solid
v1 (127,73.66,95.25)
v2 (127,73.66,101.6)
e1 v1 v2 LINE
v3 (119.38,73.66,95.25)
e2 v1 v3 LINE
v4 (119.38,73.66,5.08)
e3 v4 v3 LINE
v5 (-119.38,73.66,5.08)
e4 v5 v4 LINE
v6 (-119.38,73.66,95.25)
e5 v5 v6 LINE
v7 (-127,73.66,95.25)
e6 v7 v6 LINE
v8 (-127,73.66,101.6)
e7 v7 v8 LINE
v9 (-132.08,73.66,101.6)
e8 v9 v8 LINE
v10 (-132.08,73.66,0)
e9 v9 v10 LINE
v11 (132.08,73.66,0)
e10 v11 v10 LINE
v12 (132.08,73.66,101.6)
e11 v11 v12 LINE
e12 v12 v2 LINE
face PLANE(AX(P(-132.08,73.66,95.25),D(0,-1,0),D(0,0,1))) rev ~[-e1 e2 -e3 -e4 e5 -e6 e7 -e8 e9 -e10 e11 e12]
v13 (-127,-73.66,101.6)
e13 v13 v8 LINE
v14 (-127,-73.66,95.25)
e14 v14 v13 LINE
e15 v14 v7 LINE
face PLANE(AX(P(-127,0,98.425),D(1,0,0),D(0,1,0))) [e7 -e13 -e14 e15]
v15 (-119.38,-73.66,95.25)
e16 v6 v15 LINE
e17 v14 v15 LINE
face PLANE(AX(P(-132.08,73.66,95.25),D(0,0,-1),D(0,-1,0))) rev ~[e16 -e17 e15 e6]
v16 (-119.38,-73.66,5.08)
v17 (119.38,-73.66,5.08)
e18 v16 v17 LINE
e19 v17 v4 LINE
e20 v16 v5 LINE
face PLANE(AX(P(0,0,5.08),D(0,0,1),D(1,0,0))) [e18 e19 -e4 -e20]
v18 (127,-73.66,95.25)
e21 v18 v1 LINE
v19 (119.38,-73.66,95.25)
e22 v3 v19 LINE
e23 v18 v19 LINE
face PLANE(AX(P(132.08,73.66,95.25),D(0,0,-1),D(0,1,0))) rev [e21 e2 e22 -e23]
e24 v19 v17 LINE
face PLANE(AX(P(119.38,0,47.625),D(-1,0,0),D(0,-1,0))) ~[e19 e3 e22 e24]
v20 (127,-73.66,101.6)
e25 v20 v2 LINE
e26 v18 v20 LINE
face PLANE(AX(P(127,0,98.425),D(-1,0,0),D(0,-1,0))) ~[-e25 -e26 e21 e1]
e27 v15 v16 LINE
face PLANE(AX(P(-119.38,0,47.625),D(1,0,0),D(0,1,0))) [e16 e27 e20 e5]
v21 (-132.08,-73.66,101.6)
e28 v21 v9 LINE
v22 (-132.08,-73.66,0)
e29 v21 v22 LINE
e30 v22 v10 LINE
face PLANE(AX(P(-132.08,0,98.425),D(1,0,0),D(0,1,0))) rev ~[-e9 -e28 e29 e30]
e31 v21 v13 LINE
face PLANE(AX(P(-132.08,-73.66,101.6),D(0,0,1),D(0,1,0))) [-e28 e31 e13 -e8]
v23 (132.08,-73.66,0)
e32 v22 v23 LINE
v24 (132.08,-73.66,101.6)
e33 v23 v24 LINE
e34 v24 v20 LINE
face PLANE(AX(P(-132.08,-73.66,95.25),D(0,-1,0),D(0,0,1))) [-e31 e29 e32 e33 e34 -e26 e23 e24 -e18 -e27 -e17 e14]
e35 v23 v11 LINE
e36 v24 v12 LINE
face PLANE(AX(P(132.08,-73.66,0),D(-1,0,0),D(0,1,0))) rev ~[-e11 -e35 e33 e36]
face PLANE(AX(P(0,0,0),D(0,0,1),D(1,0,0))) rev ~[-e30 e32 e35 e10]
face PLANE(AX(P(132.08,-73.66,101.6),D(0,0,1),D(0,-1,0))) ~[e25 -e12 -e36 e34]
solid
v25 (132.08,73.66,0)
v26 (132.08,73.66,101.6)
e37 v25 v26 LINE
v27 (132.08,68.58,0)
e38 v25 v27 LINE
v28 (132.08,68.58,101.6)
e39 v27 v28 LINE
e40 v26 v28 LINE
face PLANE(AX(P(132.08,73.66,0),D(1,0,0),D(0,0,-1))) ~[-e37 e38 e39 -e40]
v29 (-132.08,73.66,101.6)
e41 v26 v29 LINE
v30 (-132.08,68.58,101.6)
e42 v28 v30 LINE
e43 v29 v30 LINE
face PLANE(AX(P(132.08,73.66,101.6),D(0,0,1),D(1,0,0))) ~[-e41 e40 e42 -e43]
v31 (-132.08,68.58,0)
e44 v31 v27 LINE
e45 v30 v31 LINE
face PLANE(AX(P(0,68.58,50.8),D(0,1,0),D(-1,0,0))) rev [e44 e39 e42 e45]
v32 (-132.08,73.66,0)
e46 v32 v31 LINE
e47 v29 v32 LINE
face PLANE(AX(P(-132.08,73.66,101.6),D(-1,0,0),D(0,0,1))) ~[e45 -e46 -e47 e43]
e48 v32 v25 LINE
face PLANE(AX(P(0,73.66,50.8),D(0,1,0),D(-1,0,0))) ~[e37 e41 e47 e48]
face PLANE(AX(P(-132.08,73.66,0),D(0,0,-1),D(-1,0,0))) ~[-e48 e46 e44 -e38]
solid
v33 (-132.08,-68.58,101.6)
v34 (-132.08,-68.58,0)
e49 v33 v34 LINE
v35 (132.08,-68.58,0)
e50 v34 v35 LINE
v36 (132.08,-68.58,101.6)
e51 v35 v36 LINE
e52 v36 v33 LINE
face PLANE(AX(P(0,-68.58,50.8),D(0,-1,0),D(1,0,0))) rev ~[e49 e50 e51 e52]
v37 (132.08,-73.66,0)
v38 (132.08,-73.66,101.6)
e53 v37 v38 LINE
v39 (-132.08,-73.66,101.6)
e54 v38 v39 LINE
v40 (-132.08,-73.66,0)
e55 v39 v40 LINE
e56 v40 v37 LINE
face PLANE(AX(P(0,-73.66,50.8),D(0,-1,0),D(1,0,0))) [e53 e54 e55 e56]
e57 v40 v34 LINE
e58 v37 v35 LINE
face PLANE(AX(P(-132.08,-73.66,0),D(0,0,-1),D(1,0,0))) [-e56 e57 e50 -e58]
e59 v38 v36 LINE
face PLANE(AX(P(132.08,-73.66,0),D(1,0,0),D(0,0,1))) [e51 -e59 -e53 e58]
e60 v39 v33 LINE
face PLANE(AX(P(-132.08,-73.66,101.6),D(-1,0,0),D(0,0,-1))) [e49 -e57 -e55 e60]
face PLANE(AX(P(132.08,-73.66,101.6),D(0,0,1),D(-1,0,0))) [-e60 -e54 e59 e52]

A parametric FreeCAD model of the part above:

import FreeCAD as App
import Part
import Sketcher
Q = App.Units.Quantity

doc = App.newDocument("Part")
body = doc.addObject("PartDesign::Body", "Body")

# Sketch on XY plane
sketch1 = doc.addObject("Sketcher::SketchObject", "Sketch")
body.addObject(sketch1)
sketch1.AttachmentSupport = (doc.XY_Plane, [""])
sketch1.MapMode = "FlatFace"
sketch1.addGeometry([
    Part.LineSegment(App.Vector(-132.08, 73.66, 0), App.Vector(-132.08, -73.66, 0)),
    Part.LineSegment(App.Vector(-132.08, -73.66, 0), App.Vector(132.08, -73.66, 0)),
    Part.LineSegment(App.Vector(132.08, -73.66, 0), App.Vector(132.08, 73.66, 0)),
    Part.LineSegment(App.Vector(132.08, 73.66, 0), App.Vector(-132.08, 73.66, 0)),
], False)
sketch1.addConstraint([
    Sketcher.Constraint("Coincident", 0, 2, 1, 1),
    Sketcher.Constraint("Coincident", 1, 2, 2, 1),
    Sketcher.Constraint("Coincident", 2, 2, 3, 1),
    Sketcher.Constraint("Coincident", 3, 2, 0, 1),
    Sketcher.Constraint("Vertical", 0),
    Sketcher.Constraint("Horizontal", 1),
    Sketcher.Constraint("Vertical", 2),
    Sketcher.Constraint("Horizontal", 3),
    Sketcher.Constraint("Symmetric", 0, 2, 2, 2, -1, 1),
    Sketcher.Constraint("DistanceX", 1, 1, 1, 2, Q("10.4 in")),
    Sketcher.Constraint("DistanceY", 0, 2, 0, 1, Q("5.8 in")),
])
pad1 = doc.addObject("PartDesign::Pad", "Pad")
body.addObject(pad1)
pad1.Profile = sketch1
pad1.Length = Q("0.2 in")

# Sketch on YZ plane
sketch2 = doc.addObject("Sketcher::SketchObject", "Sketch001")
body.addObject(sketch2)
sketch2.AttachmentSupport = (doc.YZ_Plane, [""])
sketch2.MapMode = "FlatFace"
sketch2.AttachmentOffset = App.Placement(App.Vector(0, 0, -5.2 * 25.4), App.Rotation())
sketch2.addGeometry([
    Part.LineSegment(App.Vector(-73.66, 0, 0), App.Vector(73.66, 0, 0)),
    Part.LineSegment(App.Vector(73.66, 0, 0), App.Vector(73.66, 95.25, 0)),
    Part.LineSegment(App.Vector(73.66, 95.25, 0), App.Vector(-73.66, 95.25, 0)),
    Part.LineSegment(App.Vector(-73.66, 95.25, 0), App.Vector(-73.66, 0, 0)),
], False)
sketch2.addConstraint([
    Sketcher.Constraint("Coincident", 0, 2, 1, 1),
    Sketcher.Constraint("Coincident", 1, 2, 2, 1),
    Sketcher.Constraint("Coincident", 2, 2, 3, 1),
    Sketcher.Constraint("Coincident", 3, 2, 0, 1),
    Sketcher.Constraint("Horizontal", 0),
    Sketcher.Constraint("Vertical", 1),
    Sketcher.Constraint("Horizontal", 2),
    Sketcher.Constraint("Vertical", 3),
    Sketcher.Constraint("Symmetric", 0, 2, 3, 2, -1, 1),
    Sketcher.Constraint("DistanceX", 0, 1, 0, 2, Q("5.8 in")),
    Sketcher.Constraint("DistanceY", 1, 1, 1, 2, Q("3.75 in")),
])
pad2 = doc.addObject("PartDesign::Pad", "Pad001")
body.addObject(pad2)
pad2.Profile = sketch2
pad2.Length = Q("0.5 in")
body2 = doc.addObject("PartDesign::Body", "Body001")

# Sketch on XZ plane
sketch3 = doc.addObject("Sketcher::SketchObject", "Sketch002")
body2.addObject(sketch3)
sketch3.AttachmentSupport = (doc.getObject("XZ_Plane001"), [""])
sketch3.MapMode = "FlatFace"
sketch3.AttachmentOffset = App.Placement(App.Vector(0, 0, 2.9 * 25.4), App.Rotation())
sketch3.addGeometry([
    Part.LineSegment(App.Vector(-132.08, 0, 0), App.Vector(132.08, 0, 0)),
    Part.LineSegment(App.Vector(132.08, 0, 0), App.Vector(132.08, 101.6, 0)),
    Part.LineSegment(App.Vector(132.08, 101.6, 0), App.Vector(-132.08, 101.6, 0)),
    Part.LineSegment(App.Vector(-132.08, 101.6, 0), App.Vector(-132.08, 0, 0)),
], False)
sketch3.addConstraint([
    Sketcher.Constraint("Coincident", 0, 2, 1, 1),
    Sketcher.Constraint("Coincident", 1, 2, 2, 1),
    Sketcher.Constraint("Coincident", 2, 2, 3, 1),
    Sketcher.Constraint("Coincident", 3, 2, 0, 1),
    Sketcher.Constraint("Horizontal", 0),
    Sketcher.Constraint("Vertical", 1),
    Sketcher.Constraint("Horizontal", 2),
    Sketcher.Constraint("Vertical", 3),
    Sketcher.Constraint("Symmetric", 0, 2, 3, 2, -1, 1),
    Sketcher.Constraint("DistanceY", 1, 1, 1, 2, Q("4 in")),
    Sketcher.Constraint("DistanceX", 0, 1, 0, 2, Q("10.4 in")),
])
pad3 = doc.addObject("PartDesign::Pad", "Pad002")
body2.addObject(pad3)
pad3.Profile = sketch3
pad3.Length = Q("0.2 in")
pad3.Reversed = True
body3 = doc.addObject("PartDesign::Body", "Body002")
doc.recompute()

mirroring = doc.addObject("Part::Mirroring", "Mirroring")
mirroring.Source = body2
mirroring.Base = App.Vector(0, 0, 0)
mirroring.Normal = App.Vector(0, -1, 0)
body3.BaseFeature = mirroring
doc.recompute()
body4 = doc.addObject("PartDesign::Body", "Body003")

# Sketch on YZ plane
sketch4 = doc.addObject("Sketcher::SketchObject", "Sketch003")
body4.addObject(sketch4)
sketch4.AttachmentSupport = (doc.getObject("YZ_Plane003"), [""])
sketch4.MapMode = "FlatFace"
sketch4.AttachmentOffset = App.Placement(App.Vector(0, 0, -5.2 * 25.4), App.Rotation())
sketch4.addGeometry([
    Part.LineSegment(App.Vector(-73.66, 101.6, 0), App.Vector(-73.66, 95.25, 0)),
    Part.LineSegment(App.Vector(-73.66, 95.25, 0), App.Vector(73.66, 95.25, 0)),
    Part.LineSegment(App.Vector(73.66, 95.25, 0), App.Vector(73.66, 101.6, 0)),
    Part.LineSegment(App.Vector(73.66, 101.6, 0), App.Vector(-73.66, 101.6, 0)),
], False)
sketch4.addConstraint([
    Sketcher.Constraint("Coincident", 0, 2, 1, 1),
    Sketcher.Constraint("Coincident", 1, 2, 2, 1),
    Sketcher.Constraint("Coincident", 2, 2, 3, 1),
    Sketcher.Constraint("Coincident", 3, 2, 0, 1),
    Sketcher.Constraint("Vertical", 0),
    Sketcher.Constraint("Horizontal", 1),
    Sketcher.Constraint("Vertical", 2),
    Sketcher.Constraint("Horizontal", 3),
    Sketcher.Constraint("DistanceX", 1, 1, 1, 2, Q("5.8 in")),
    Sketcher.Constraint("DistanceY", -1, 1, 2, 2, Q("4 in")),
    Sketcher.Constraint("DistanceY", 0, 2, 0, 1, Q("0.25 in")),
    Sketcher.Constraint("DistanceX", 0, 2, -1, 1, Q("2.9 in")),
])
pad4 = doc.addObject("PartDesign::Pad", "Pad003")
body4.addObject(pad4)
pad4.Profile = sketch4
pad4.Length = Q("0.2 in")
body5 = doc.addObject("PartDesign::Body", "Body004")
body5.AllowCompound = True
doc.recompute()

body5.BaseFeature = body
doc.recompute()

body6 = doc.addObject("PartDesign::Body", "Body005")
body6.BaseFeature = body4
boolean = doc.addObject("PartDesign::Boolean", "Boolean")
body5.addObject(boolean)
boolean.Type = "Fuse"
boolean.addObjects([body6])
doc.recompute()

mirroring2 = doc.addObject("Part::Mirroring", "Mirroring001")
mirroring2.Source = body4
mirroring2.Base = App.Vector(0, 0, 0)
mirroring2.Normal = App.Vector(1, 0, 0)
body7 = doc.addObject("PartDesign::Body", "Body006")
body7.BaseFeature = mirroring2
boolean2 = doc.addObject("PartDesign::Boolean", "Boolean001")
body5.addObject(boolean2)
boolean2.Type = "Fuse"
boolean2.addObjects([body7])
doc.recompute()

mirroring3 = doc.addObject("Part::Mirroring", "Mirroring002")
mirroring3.Source = body
mirroring3.Base = App.Vector(0, 0, 0)
mirroring3.Normal = App.Vector(1, 0, 0)
body8 = doc.addObject("PartDesign::Body", "Body007")
body8.BaseFeature = mirroring3
boolean3 = doc.addObject("PartDesign::Boolean", "Boolean002")
body5.addObject(boolean3)
boolean3.Type = "Fuse"
boolean3.addObjects([body8])
doc.recompute()
mirroring.Visibility = False
mirroring2.Visibility = False
mirroring3.Visibility = False

doc.recompute()
